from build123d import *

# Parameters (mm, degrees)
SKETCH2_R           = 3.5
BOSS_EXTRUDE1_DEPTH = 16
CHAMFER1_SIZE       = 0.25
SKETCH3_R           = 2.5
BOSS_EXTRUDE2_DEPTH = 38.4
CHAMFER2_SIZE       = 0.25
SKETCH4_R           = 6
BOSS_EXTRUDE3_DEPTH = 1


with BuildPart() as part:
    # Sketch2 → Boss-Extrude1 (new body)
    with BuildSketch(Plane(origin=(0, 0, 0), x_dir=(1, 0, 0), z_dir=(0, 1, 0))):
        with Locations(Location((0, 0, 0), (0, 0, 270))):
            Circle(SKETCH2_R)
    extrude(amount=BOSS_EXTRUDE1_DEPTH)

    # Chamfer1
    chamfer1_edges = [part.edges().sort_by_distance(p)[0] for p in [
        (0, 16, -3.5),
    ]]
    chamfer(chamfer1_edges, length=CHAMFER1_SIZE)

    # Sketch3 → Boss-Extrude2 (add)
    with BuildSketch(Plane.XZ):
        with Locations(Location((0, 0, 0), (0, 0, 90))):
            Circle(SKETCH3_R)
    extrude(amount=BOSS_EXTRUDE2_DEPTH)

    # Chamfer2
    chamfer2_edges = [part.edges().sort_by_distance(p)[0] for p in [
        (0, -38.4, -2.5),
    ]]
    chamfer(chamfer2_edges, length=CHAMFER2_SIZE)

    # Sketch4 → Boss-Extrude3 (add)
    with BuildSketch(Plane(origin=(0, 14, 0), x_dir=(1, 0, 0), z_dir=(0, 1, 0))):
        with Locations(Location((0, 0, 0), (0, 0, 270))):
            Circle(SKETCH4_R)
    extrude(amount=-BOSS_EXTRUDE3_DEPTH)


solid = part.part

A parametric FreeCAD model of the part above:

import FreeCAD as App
import Part
import Sketcher
from FreeCAD import Vector
Q = App.Units.Quantity


def edges_at(feature, points):
    """Names of the edges that pass closest to the given points."""
    edges = feature.Shape.Edges
    near = lambda p: min(range(len(edges)), key=lambda i: edges[i].distToShape(Part.Vertex(*p))[0])
    return sorted({f"Edge{near(p) + 1}" for p in points})

doc = App.newDocument("Part")
body = doc.addObject("PartDesign::Body", "Body")

sketch1 = body.newObject("Sketcher::SketchObject", "Sketch")
sketch1.AttachmentSupport = (doc.getObject("XZ_Plane"), [""])
sketch1.MapMode = "FlatFace"
sketch1.addGeometry(Part.Circle(Vector(0, 0, 0), Vector(0, 0, 1), 3.5), False)
sketch1.addConstraint([
    Sketcher.Constraint("Coincident", 0, 3, -1, 1),
    Sketcher.Constraint("Diameter", 0, Q("7 mm")),
])
pad1 = body.newObject("PartDesign::Pad", "Pad")
pad1.Profile = sketch1
pad1.Length = 16
pad1.Reversed = True
doc.recompute()

chamfer = body.newObject("PartDesign::Chamfer", "Chamfer")
chamfer.Base = (pad1, edges_at(pad1, [(0, 16, -3.5)]))
chamfer.Size = 0.25

sketch2 = body.newObject("Sketcher::SketchObject", "Sketch001")
sketch2.AttachmentSupport = (doc.getObject("XZ_Plane"), [""])
sketch2.MapMode = "FlatFace"
sketch2.addGeometry(Part.Circle(Vector(0, 0, 0), Vector(0, 0, 1), 2.5), False)
sketch2.addConstraint([
    Sketcher.Constraint("Coincident", 0, 3, -1, 1),
    Sketcher.Constraint("Diameter", 0, Q("5 mm")),
])
pad2 = body.newObject("PartDesign::Pad", "Pad001")
pad2.Profile = sketch2
pad2.Length = 38.4
doc.recompute()

chamfer2 = body.newObject("PartDesign::Chamfer", "Chamfer001")
chamfer2.Base = (pad2, edges_at(pad2, [(0, -38.4, -2.5)]))
chamfer2.Size = 0.25

sketch3 = body.newObject("Sketcher::SketchObject", "Sketch002")
sketch3.AttachmentSupport = (doc.getObject("XZ_Plane"), [""])
sketch3.MapMode = "FlatFace"
sketch3.AttachmentOffset = App.Placement(Vector(0, 0, -14), App.Rotation())
sketch3.addGeometry(Part.Circle(Vector(0, 0, 0), Vector(0, 0, 1), 6), False)
sketch3.addConstraint([
    Sketcher.Constraint("Coincident", 0, 3, -1, 1),
    Sketcher.Constraint("Diameter", 0, Q("12 mm")),
])
pad3 = body.newObject("PartDesign::Pad", "Pad002")
pad3.Profile = sketch3
pad3.Length = 1

doc.recompute()
